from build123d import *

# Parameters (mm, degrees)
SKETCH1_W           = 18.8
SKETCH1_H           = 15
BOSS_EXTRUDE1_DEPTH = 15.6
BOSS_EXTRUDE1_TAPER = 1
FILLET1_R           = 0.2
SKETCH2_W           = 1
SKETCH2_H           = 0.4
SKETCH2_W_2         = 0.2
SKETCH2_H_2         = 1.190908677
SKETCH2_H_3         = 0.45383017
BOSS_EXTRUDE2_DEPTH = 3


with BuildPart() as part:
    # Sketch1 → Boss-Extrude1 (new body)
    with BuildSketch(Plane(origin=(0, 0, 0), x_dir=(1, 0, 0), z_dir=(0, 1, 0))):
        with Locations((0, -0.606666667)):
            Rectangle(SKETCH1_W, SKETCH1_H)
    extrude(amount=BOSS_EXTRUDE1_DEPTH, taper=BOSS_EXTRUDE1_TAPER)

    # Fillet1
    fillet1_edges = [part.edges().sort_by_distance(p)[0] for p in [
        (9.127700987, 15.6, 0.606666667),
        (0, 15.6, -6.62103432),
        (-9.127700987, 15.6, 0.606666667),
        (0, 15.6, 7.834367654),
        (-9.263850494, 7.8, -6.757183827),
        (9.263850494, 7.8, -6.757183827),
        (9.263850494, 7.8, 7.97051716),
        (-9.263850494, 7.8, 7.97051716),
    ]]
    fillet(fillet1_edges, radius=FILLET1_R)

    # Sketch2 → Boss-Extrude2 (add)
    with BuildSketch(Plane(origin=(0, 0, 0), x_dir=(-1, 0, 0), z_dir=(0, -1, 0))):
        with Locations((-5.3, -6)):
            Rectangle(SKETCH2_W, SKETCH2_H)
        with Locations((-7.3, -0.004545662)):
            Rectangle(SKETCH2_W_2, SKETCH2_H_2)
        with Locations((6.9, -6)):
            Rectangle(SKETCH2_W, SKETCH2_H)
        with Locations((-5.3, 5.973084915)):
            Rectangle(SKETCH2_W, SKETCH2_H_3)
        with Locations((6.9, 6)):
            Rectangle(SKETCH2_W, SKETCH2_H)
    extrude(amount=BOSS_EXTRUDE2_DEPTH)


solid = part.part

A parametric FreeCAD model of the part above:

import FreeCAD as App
import Part
import Sketcher
Q = App.Units.Quantity


def edges_at(feature, points):
    """Names of the edges that pass closest to the given points."""
    edges = feature.Shape.Edges
    near = lambda p: min(range(len(edges)), key=lambda i: edges[i].distToShape(Part.Vertex(*p))[0])
    return sorted({f"Edge{near(p) + 1}" for p in points})


def add_polygon(sketch, points):
    """Adds a closed chain of lines whose ends are joined by coincident constraints."""
    first, n = sketch.GeometryCount, len(points)
    for a, b in zip(points, points[1:] + points[:1]):
        sketch.addGeometry(Part.LineSegment(App.Vector(*a, 0), App.Vector(*b, 0)), False)
    for i in range(n):
        sketch.addConstraint(Sketcher.Constraint("Coincident", first + i, 2, first + (i + 1) % n, 1))

doc = App.newDocument("Part")
params = doc.addObject("Spreadsheet::Sheet", "Params")
for row, (alias, value) in enumerate([
    ("sketch1_height", "15 mm"),
    ("sketch1_width", "18.8 mm"),
    ("pad1_length", "15.6 mm"),
    ("pad1_taper", "-1 deg"),
    ("fillet_radius", "0.2 mm"),
    ("sketch2_width", "1 mm"),
    ("sketch2_width2", "0.2 mm"),
    ("sketch2_height", "0.4 mm"),
    ("pad2_length", "3 mm"),
], start=1):
    params.set(f"A{row}", alias)
    params.set(f"B{row}", "=" + value)
    params.setAlias(f"B{row}", alias)

body = doc.addObject("PartDesign::Body", "Body")

# Sketch on XZ plane
sketch1 = body.newObject("Sketcher::SketchObject", "Sketch")
sketch1.AttachmentSupport = (doc.getObject("XZ_Plane"), [""])
sketch1.MapMode = "FlatFace"
add_polygon(sketch1, [(-9, -7), (-9, 8), (9, 8), (9, -7)])  # lines 0-3
sketch1.addConstraint([
    Sketcher.Constraint("Vertical", 0),
    Sketcher.Constraint("Horizontal", 1),
    Sketcher.Constraint("Vertical", 2),
    Sketcher.Constraint("Horizontal", 3),
    Sketcher.Constraint("DistanceY", 0, 1, 0, 2, Q("15 mm")),
    Sketcher.Constraint("DistanceX", 1, 1, 1, 2, Q("18.8 mm")),
    Sketcher.Constraint("DistanceX", 0, 2, -1, 1, Q("9.4 mm")),
    Sketcher.Constraint("DistanceY", -1, 1, 0, 2, Q("8.106667 mm")),
])
sketch1.setExpression("Constraints[8]", "Params.sketch1_height")
sketch1.setExpression("Constraints[9]", "Params.sketch1_width")
pad1 = body.newObject("PartDesign::Pad", "Pad")
pad1.Profile = sketch1
pad1.setExpression("Length", "Params.pad1_length")
pad1.Reversed = True
pad1.setExpression("TaperAngle", "Params.pad1_taper")
doc.recompute()

fillet = body.newObject("PartDesign::Fillet", "Fillet")
fillet.Base = (pad1, edges_at(pad1, [
    (9.128, 15.6, 0.607),
    (0, 15.6, -6.621),
    (-9.128, 15.6, 0.607),
    (0, 15.6, 7.834),
    (-9.264, 7.8, -6.757),
    (9.264, 7.8, -6.757),
    (9.264, 7.8, 7.971),
    (-9.264, 7.8, 7.971),
]))
fillet.setExpression("Radius", "Params.fillet_radius")

# Sketch on XZ plane
sketch2 = body.newObject("Sketcher::SketchObject", "Sketch001")
sketch2.AttachmentSupport = (doc.getObject("XZ_Plane"), [""])
sketch2.MapMode = "FlatFace"
add_polygon(sketch2, [(5.8, 5.8), (5.8, 6.2), (4.8, 6.2), (4.8, 5.8)])  # lines 0-3
add_polygon(sketch2, [(7.4, -0.59), (7.4, 0.6), (7.2, 0.6), (7.2, -0.59)])  # lines 4-7
add_polygon(sketch2, [(-6.4, 5.8), (-6.4, 6.2), (-7.4, 6.2), (-7.4, 5.8)])  # lines 8-11
add_polygon(sketch2, [(5.8, -6.2), (5.8, -5.75), (4.8, -5.75), (4.8, -6.2)])  # lines 12-15
add_polygon(sketch2, [(-6.4, -6.2), (-6.4, -5.8), (-7.4, -5.8), (-7.4, -6.2)])  # lines 16-19
sketch2.addConstraint([
    Sketcher.Constraint("Vertical", 0),
    Sketcher.Constraint("Horizontal", 1),
    Sketcher.Constraint("Vertical", 2),
    Sketcher.Constraint("Horizontal", 3),
    Sketcher.Constraint("Vertical", 4),
    Sketcher.Constraint("Horizontal", 5),
    Sketcher.Constraint("Vertical", 6),
    Sketcher.Constraint("Horizontal", 7),
    Sketcher.Constraint("Vertical", 8),
    Sketcher.Constraint("Horizontal", 9),
    Sketcher.Constraint("Vertical", 10),
    Sketcher.Constraint("Horizontal", 11),
    Sketcher.Constraint("Vertical", 12),
    Sketcher.Constraint("Horizontal", 13),
    Sketcher.Constraint("Vertical", 14),
    Sketcher.Constraint("Horizontal", 15),
    Sketcher.Constraint("Vertical", 16),
    Sketcher.Constraint("Horizontal", 17),
    Sketcher.Constraint("Vertical", 18),
    Sketcher.Constraint("Horizontal", 19),
    Sketcher.Constraint("Symmetric", 1, 2, 14, 2, -1),
    Sketcher.Constraint("Symmetric", 11, 2, 16, 2, -1),
    Sketcher.Constraint("Symmetric", 9, 2, 18, 2, -1),
    Sketcher.Constraint("Horizontal", 1, 2, 8, 2),
    Sketcher.Constraint("Horizontal", 3, 2, 10, 2),
    Sketcher.Constraint("Vertical", 3, 2, 12, 2),
    Sketcher.Constraint("Equal", 3, 9),
    Sketcher.Constraint("DistanceX", 1, 2, 1, 1, Q("1 mm")),
    Sketcher.Constraint("DistanceX", 5, 2, 5, 1, Q("0.2 mm")),
    Sketcher.Constraint("DistanceY", 0, 1, 0, 2, Q("0.4 mm")),
    Sketcher.Constraint("DistanceY", 16, 2, 8, 2, Q("12 mm")),
    Sketcher.Constraint("DistanceX", -1, 1, 0, 2, Q("5.8 mm")),
    Sketcher.Constraint("DistanceX", -1, 1, 4, 2, Q("7.4 mm")),
    Sketcher.Constraint("DistanceY", -1, 1, 4, 2, Q("0.6 mm")),
    Sketcher.Constraint("DistanceX", 8, 2, -1, 1, Q("6.4 mm")),
    Sketcher.Constraint("DistanceY", 4, 1, 4, 2, Q("1.190909 mm")),
    Sketcher.Constraint("DistanceY", 12, 1, 12, 2, Q("0.45383 mm")),
])
sketch2.setExpression("Constraints[47]", "Params.sketch2_width")
sketch2.setExpression("Constraints[48]", "Params.sketch2_width2")
sketch2.setExpression("Constraints[49]", "Params.sketch2_height")
pad2 = body.newObject("PartDesign::Pad", "Pad001")
pad2.Profile = sketch2
pad2.setExpression("Length", "Params.pad2_length")

doc.recompute()
